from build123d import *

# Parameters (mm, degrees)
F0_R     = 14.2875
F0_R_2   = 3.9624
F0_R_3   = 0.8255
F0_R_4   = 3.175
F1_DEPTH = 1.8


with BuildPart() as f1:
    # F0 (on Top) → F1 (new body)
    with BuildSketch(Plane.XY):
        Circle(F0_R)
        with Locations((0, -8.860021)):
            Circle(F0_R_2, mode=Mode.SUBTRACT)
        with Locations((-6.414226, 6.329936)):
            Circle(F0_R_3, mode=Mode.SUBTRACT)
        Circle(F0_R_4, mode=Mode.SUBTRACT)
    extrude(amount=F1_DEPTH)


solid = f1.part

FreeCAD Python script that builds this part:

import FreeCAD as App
import Part
import Sketcher

V = App.Vector
Q = App.Units.Quantity

doc = App.newDocument("Part")
params = doc.addObject("Spreadsheet::Sheet", "Params")
for row, (alias, value) in enumerate([
    ("sketch1_diameter", "0.25 in"),
    ("sketch1_diameter2", "1.125 in"),
    ("sketch1_diameter3", "0.312 in"),
    ("sketch1_diameter4", "0.065 in"),
    ("pad1_length", "1.8 mm"),
], start=1):
    params.set(f"A{row}", alias)
    params.set(f"B{row}", "=" + value)
    params.setAlias(f"B{row}", alias)

body = doc.addObject("PartDesign::Body", "Body")

# Sketch on XY plane
sketch1 = doc.addObject("Sketcher::SketchObject", "Sketch")
body.addObject(sketch1)
sketch1.AttachmentSupport = (doc.XY_Plane, [""])
sketch1.MapMode = "FlatFace"
sketch1.addGeometry([
    Part.Circle(V(0, 0, 0), V(0, 0, 1), 14.3),
    Part.Circle(V(0, -8.9, 0), V(0, 0, 1), 4),
    Part.Circle(V(-6.4, 6.3, 0), V(0, 0, 1), 0.8),
    Part.Circle(V(0, 0, 0), V(0, 0, 1), 3.2),
], False)
sketch1.addConstraint([
    Sketcher.Constraint("Coincident", 0, 3, -1, 1),
    Sketcher.Constraint("Coincident", 3, 3, -1, 1),
    Sketcher.Constraint("PointOnObject", 1, 3, -2),
    Sketcher.Constraint("Diameter", 3, Q("0.25 in")),
    Sketcher.Constraint("Diameter", 0, Q("1.125 in")),
    Sketcher.Constraint("Diameter", 1, Q("0.312 in")),
    Sketcher.Constraint("Diameter", 2, Q("0.065 in")),
    Sketcher.Constraint("DistanceY", 1, 3, -1, 1, 8.860021),
    Sketcher.Constraint("DistanceX", 2, 3, -1, 1, 6.414226),
    Sketcher.Constraint("DistanceY", -1, 1, 2, 3, 6.329936),
])
sketch1.setExpression("Constraints[3]", "Params.sketch1_diameter")
sketch1.setExpression("Constraints[4]", "Params.sketch1_diameter2")
sketch1.setExpression("Constraints[5]", "Params.sketch1_diameter3")
sketch1.setExpression("Constraints[6]", "Params.sketch1_diameter4")
pad1 = doc.addObject("PartDesign::Pad", "Pad")
body.addObject(pad1)
pad1.Profile = sketch1
pad1.setExpression("Length", "Params.pad1_length")

doc.recompute()
